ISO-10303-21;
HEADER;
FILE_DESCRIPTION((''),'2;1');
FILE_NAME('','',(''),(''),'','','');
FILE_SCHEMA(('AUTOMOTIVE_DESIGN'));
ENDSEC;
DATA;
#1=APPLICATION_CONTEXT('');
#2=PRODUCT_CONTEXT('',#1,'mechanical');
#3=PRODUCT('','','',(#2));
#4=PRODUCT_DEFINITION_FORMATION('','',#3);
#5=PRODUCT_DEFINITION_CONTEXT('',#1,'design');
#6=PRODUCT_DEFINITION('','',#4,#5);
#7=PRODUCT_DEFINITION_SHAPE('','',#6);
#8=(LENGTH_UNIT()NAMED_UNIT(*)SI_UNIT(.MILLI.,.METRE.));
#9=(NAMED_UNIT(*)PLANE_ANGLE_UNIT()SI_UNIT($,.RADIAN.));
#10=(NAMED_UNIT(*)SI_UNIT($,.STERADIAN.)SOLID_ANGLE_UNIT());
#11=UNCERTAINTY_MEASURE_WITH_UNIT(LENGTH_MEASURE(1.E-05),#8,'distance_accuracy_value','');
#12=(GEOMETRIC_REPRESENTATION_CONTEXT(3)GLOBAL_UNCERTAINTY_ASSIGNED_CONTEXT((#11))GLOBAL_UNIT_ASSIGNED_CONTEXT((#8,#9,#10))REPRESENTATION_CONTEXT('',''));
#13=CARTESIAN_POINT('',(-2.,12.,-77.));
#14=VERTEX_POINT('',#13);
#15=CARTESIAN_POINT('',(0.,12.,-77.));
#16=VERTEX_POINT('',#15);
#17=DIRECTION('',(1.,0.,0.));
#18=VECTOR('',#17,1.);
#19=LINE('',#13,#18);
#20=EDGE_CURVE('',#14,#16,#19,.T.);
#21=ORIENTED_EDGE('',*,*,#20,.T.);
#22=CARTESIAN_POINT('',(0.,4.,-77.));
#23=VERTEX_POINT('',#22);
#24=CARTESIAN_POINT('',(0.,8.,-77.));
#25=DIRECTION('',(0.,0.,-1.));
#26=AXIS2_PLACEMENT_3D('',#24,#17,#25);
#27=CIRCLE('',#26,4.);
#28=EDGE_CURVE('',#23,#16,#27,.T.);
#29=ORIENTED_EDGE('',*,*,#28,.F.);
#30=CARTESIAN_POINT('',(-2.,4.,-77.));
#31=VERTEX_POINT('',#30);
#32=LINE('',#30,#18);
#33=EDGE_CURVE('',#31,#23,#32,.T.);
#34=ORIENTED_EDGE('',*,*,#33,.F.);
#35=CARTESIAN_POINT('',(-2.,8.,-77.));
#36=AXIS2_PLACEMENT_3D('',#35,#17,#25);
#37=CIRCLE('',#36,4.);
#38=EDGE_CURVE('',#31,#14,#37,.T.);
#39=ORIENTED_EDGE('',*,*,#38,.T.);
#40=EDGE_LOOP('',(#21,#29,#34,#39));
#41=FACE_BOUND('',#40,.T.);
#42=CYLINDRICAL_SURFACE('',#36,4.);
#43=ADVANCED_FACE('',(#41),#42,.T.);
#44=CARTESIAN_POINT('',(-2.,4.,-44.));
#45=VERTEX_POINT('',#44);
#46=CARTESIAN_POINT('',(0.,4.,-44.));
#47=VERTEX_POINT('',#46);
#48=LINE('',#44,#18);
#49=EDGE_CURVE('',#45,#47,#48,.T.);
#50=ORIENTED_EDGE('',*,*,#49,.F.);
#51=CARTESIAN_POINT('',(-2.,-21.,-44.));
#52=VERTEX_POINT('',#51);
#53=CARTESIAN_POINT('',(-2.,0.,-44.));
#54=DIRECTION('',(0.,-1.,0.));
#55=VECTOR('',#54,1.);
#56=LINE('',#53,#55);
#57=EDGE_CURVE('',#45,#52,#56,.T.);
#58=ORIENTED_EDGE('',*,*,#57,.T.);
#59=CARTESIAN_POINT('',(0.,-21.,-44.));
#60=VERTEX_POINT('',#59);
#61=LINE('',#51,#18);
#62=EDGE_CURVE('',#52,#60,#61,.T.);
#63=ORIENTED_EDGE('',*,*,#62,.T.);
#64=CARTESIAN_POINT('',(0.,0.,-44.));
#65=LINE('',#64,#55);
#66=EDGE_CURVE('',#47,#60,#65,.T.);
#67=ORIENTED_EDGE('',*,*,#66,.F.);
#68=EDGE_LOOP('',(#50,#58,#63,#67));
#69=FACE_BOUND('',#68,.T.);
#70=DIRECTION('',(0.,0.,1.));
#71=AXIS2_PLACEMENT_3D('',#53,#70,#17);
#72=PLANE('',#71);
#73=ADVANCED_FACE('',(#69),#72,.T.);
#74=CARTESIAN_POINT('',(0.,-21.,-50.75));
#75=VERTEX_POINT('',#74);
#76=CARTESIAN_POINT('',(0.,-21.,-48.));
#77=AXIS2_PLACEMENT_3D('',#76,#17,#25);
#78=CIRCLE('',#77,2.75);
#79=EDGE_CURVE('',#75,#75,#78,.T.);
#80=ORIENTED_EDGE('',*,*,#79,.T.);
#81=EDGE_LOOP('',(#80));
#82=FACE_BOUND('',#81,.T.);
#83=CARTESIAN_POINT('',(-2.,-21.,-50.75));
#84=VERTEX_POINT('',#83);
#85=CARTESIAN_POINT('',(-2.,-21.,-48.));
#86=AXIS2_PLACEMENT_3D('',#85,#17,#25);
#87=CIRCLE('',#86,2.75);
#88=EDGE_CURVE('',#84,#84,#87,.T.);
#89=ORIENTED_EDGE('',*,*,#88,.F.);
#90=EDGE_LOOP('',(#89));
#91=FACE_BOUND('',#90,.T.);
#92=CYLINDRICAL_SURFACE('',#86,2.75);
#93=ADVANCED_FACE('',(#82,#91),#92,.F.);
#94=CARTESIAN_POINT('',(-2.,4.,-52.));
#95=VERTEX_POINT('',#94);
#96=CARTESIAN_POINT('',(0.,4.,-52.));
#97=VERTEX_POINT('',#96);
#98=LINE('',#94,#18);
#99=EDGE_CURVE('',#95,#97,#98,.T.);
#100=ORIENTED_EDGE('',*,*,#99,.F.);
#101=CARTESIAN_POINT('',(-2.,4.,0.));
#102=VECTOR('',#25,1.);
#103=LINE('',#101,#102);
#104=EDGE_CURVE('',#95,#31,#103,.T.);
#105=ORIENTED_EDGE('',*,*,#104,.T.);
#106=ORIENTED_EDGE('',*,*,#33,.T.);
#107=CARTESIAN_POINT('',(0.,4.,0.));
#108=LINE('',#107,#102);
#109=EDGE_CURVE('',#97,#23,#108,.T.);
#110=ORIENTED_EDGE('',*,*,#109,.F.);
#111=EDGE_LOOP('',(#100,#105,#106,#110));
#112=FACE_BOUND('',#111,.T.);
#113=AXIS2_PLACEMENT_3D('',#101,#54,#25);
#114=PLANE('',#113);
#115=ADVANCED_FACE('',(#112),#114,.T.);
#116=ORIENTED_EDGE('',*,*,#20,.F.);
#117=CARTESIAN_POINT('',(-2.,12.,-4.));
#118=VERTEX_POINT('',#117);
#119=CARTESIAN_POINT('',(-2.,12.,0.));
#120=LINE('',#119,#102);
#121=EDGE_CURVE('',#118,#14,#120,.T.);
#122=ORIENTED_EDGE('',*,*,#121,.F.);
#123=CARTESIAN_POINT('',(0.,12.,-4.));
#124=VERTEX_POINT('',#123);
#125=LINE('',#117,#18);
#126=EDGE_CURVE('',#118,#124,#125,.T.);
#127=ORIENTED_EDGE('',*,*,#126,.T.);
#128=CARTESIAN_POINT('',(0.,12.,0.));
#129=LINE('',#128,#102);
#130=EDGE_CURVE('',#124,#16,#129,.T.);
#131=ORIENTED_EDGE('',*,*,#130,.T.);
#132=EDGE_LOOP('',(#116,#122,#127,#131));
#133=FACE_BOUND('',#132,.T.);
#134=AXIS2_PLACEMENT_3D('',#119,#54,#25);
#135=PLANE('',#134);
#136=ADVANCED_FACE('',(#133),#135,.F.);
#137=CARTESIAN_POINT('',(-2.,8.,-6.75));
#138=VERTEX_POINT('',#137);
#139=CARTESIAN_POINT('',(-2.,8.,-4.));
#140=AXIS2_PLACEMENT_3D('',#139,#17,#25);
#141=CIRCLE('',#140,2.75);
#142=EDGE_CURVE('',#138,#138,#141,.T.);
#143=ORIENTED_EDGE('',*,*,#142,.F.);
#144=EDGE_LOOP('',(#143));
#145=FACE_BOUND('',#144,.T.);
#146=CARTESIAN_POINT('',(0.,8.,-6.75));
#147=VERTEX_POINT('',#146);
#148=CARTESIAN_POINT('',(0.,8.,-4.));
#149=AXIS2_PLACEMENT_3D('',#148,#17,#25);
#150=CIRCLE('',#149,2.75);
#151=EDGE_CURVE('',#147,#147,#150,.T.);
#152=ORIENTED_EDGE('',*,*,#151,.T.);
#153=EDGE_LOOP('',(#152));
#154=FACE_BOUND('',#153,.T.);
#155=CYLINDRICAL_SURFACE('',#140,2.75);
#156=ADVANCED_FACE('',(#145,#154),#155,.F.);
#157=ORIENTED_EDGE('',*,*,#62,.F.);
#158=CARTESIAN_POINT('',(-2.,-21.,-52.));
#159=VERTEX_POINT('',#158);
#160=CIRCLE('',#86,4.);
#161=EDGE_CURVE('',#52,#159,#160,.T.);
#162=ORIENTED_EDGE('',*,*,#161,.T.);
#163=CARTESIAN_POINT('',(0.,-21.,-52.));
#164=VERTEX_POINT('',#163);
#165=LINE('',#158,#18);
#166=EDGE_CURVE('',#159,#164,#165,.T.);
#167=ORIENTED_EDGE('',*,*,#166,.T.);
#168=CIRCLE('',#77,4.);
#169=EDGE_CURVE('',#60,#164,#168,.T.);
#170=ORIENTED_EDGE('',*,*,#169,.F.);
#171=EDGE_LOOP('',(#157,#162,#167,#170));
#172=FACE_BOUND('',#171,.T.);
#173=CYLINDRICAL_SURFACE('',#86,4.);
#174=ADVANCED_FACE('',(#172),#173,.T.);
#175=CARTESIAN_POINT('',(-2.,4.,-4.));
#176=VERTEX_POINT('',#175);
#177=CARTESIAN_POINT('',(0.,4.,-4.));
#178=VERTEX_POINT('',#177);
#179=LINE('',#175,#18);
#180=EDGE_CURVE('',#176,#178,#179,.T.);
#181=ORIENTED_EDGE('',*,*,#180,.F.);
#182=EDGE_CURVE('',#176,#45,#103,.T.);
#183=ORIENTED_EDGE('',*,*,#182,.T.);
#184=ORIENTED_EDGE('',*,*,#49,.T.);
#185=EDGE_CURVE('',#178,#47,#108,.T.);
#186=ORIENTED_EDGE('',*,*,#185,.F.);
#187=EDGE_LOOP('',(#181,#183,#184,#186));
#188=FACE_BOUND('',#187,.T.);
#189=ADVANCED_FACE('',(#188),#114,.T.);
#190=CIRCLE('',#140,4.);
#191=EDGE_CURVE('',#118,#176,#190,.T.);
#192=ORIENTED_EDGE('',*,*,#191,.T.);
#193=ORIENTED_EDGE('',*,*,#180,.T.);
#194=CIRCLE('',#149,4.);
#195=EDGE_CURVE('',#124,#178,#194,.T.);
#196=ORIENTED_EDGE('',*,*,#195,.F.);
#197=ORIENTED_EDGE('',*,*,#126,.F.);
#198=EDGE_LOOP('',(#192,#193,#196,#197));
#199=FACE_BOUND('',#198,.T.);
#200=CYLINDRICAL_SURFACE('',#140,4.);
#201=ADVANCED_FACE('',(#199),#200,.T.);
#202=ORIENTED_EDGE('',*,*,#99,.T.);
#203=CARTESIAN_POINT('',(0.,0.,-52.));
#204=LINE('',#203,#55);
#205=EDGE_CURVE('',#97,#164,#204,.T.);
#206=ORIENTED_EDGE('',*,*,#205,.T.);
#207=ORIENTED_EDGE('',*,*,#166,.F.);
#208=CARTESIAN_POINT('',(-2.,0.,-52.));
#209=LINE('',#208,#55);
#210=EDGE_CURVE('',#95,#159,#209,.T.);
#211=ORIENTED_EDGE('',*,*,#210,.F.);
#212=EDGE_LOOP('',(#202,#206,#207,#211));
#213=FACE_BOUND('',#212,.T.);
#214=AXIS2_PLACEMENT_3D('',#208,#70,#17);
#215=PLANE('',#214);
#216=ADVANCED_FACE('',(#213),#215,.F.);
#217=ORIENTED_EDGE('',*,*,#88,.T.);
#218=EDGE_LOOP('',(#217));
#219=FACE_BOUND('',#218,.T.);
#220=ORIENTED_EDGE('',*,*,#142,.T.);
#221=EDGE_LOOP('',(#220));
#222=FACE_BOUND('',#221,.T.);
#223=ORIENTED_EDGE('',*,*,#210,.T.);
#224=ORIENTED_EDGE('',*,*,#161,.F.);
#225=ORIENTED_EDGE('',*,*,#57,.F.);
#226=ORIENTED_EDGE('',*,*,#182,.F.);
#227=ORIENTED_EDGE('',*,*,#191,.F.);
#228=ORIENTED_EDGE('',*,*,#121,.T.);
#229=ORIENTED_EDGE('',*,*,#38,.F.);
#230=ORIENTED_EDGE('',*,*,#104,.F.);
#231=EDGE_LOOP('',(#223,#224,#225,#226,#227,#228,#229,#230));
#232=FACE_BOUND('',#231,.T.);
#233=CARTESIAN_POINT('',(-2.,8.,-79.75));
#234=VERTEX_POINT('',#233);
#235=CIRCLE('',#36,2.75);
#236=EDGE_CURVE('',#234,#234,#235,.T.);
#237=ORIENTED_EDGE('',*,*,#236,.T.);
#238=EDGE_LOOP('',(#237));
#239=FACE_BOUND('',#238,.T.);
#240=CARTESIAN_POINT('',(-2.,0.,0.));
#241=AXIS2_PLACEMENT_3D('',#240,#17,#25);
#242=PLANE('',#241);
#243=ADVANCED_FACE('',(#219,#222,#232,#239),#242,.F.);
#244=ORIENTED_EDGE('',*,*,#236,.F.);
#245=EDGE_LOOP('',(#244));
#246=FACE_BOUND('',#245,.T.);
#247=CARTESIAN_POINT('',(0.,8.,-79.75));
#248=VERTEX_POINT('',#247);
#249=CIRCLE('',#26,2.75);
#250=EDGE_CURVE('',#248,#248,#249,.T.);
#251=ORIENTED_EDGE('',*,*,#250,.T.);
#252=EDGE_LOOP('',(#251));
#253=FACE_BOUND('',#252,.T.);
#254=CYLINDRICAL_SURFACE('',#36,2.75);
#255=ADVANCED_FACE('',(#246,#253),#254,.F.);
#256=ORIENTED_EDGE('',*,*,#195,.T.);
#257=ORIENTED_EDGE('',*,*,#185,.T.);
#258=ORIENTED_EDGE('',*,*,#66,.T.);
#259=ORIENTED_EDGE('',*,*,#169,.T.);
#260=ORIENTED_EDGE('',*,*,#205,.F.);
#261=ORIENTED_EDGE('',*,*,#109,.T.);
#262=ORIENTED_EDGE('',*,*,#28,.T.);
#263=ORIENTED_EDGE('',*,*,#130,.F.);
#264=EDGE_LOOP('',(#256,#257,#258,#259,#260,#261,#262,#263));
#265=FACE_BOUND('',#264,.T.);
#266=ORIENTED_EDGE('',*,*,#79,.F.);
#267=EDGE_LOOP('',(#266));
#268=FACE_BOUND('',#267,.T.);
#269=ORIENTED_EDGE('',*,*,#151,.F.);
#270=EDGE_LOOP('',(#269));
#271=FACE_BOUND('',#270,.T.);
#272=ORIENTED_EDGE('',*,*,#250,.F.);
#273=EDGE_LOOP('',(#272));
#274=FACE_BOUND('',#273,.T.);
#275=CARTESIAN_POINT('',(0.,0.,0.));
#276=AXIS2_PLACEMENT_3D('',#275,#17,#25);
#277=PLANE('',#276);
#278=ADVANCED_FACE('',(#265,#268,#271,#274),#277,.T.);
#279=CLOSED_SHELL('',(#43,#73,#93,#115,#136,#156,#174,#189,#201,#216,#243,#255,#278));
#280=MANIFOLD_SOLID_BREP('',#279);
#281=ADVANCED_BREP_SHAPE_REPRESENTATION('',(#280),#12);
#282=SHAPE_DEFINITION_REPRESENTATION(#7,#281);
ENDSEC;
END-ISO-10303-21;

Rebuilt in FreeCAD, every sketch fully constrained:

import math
import FreeCAD as App
import Part
import Sketcher
from FreeCAD import Vector

doc = App.newDocument("Part")
body = doc.addObject("PartDesign::Body", "Body")

sketch1 = body.newObject("Sketcher::SketchObject", "Sketch")
sketch1.AttachmentSupport = (doc.getObject("YZ_Plane"), [""])
sketch1.MapMode = "FlatFace"
sketch1.addGeometry([
    Part.LineSegment(Vector(4, -4, 0), Vector(4, -44, 0)),
    Part.LineSegment(Vector(4, -44, 0), Vector(-21, -44, 0)),
    Part.ArcOfCircle(Part.Circle(Vector(-21, -48, 0), Vector(0, 0, 1), 4), math.radians(90), math.radians(270)),
    Part.LineSegment(Vector(-21, -52, 0), Vector(4, -52, 0)),
    Part.LineSegment(Vector(4, -52, 0), Vector(4, -77, 0)),
    Part.ArcOfCircle(Part.Circle(Vector(8, -77, 0), Vector(0, 0, 1), 4), math.radians(180), math.radians(360)),
    Part.LineSegment(Vector(12, -77, 0), Vector(12, -4, 0)),
    Part.ArcOfCircle(Part.Circle(Vector(8, -4, 0), Vector(0, 0, 1), 4), math.radians(0), math.radians(180)),
    Part.Circle(Vector(-21, -48, 0), Vector(0, 0, 1), 2.75),
    Part.Circle(Vector(8, -4, 0), Vector(0, 0, 1), 2.75),
    Part.Circle(Vector(8, -77, 0), Vector(0, 0, 1), 2.75),
], False)
sketch1.addConstraint([
    Sketcher.Constraint("Coincident", 0, 2, 1, 1),
    Sketcher.Constraint("Tangent", 1, 2, 2, 1),
    Sketcher.Constraint("Tangent", 2, 2, 3, 1),
    Sketcher.Constraint("Coincident", 3, 2, 4, 1),
    Sketcher.Constraint("Tangent", 4, 2, 5, 1),
    Sketcher.Constraint("Tangent", 5, 2, 6, 1),
    Sketcher.Constraint("Tangent", 6, 2, 7, 1),
    Sketcher.Constraint("Tangent", 7, 2, 0, 1),
    Sketcher.Constraint("Vertical", 0),
    Sketcher.Constraint("Horizontal", 1),
    Sketcher.Constraint("Horizontal", 3),
    Sketcher.Constraint("Vertical", 4),
    Sketcher.Constraint("Vertical", 6),
    Sketcher.Constraint("Coincident", 8, 3, 2, 3),
    Sketcher.Constraint("Coincident", 9, 3, 7, 3),
    Sketcher.Constraint("Coincident", 10, 3, 5, 3),
    Sketcher.Constraint("Equal", 2, 5),
    Sketcher.Constraint("Equal", 5, 7),
    Sketcher.Constraint("Equal", 8, 9),
    Sketcher.Constraint("Equal", 9, 10),
    Sketcher.Constraint("Equal", 3, 4),
    Sketcher.Constraint("Radius", 2, 4.0),
    Sketcher.Constraint("Diameter", 8, 5.5),
    Sketcher.Constraint("DistanceX", 1, 2, 1, 1, 25.0),
    Sketcher.Constraint("DistanceY", 0, 2, 0, 1, 40.0),
    Sketcher.Constraint("DistanceX", 2, 3, -1, 1, 21.0),
    Sketcher.Constraint("DistanceY", 2, 3, -1, 1, 48.0),
])
pad1 = body.newObject("PartDesign::Pad", "Pad")
pad1.Profile = sketch1
pad1.Length = 2
pad1.Reversed = True

doc.recompute()
